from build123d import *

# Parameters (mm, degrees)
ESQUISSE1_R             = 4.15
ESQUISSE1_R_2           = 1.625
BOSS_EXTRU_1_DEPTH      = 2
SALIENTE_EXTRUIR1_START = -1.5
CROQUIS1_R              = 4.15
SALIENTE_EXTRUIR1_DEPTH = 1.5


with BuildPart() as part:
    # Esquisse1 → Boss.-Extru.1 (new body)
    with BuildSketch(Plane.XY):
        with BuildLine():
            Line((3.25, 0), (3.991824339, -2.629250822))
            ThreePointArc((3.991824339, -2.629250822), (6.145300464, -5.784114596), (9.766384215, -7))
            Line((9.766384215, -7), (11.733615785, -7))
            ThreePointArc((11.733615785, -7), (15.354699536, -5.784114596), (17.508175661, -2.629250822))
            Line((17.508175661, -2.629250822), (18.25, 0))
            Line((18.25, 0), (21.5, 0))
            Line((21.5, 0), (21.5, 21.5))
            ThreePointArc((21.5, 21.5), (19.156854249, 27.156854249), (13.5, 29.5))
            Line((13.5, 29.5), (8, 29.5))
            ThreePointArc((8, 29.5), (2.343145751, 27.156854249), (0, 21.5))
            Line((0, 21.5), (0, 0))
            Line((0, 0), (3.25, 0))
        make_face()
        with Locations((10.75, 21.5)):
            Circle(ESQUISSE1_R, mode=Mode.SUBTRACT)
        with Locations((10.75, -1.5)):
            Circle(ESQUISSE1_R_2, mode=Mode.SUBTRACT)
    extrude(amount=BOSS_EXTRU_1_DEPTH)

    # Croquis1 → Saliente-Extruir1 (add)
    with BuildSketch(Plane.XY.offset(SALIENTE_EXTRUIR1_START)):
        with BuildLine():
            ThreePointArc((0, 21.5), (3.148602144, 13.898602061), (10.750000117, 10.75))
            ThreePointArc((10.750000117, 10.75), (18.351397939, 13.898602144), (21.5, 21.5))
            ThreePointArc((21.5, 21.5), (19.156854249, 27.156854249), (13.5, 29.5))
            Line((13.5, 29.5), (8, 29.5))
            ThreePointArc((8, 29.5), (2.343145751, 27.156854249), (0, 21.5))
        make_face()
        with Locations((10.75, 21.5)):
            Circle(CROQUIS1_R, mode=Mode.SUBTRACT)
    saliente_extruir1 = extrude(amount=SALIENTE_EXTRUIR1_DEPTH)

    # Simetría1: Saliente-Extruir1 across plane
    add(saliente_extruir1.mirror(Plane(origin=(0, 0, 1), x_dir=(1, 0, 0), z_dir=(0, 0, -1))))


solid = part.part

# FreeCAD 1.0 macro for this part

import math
import FreeCAD as App
import Part
import Sketcher
from FreeCAD import Vector

doc = App.newDocument("Part")
body = doc.addObject("PartDesign::Body", "Body")

# Sketch on XY plane
sketch1 = body.newObject("Sketcher::SketchObject", "Sketch")
sketch1.AttachmentSupport = (doc.getObject("XY_Plane"), [""])
sketch1.MapMode = "FlatFace"
sketch1.addGeometry(Part.LineSegment(Vector(3.25, 0, 0), Vector(3.991824, -2.629251, 0)), False)
sketch1.addGeometry(Part.ArcOfCircle(Part.Circle(Vector(9.766384, -1, 0), Vector(0, 0, 1), 6), math.radians(-164.243966), math.radians(-90)), False)
sketch1.addGeometry(Part.LineSegment(Vector(9.766384, -7, 0), Vector(11.733616, -7, 0)), False)
sketch1.addGeometry(Part.ArcOfCircle(Part.Circle(Vector(11.733616, -1, 0), Vector(0, 0, 1), 6), math.radians(-90), math.radians(-15.756034)), False)
sketch1.addGeometry(Part.LineSegment(Vector(17.508176, -2.629251, 0), Vector(18.25, 0, 0)), False)
sketch1.addGeometry(Part.LineSegment(Vector(18.25, 0, 0), Vector(21.5, 0, 0)), False)
sketch1.addGeometry(Part.LineSegment(Vector(21.5, 0, 0), Vector(21.5, 21.5, 0)), False)
sketch1.addGeometry(Part.ArcOfCircle(Part.Circle(Vector(13.5, 21.5, 0), Vector(0, 0, 1), 8), math.radians(0), math.radians(90)), False)
sketch1.addGeometry(Part.LineSegment(Vector(13.5, 29.5, 0), Vector(8, 29.5, 0)), False)
sketch1.addGeometry(Part.ArcOfCircle(Part.Circle(Vector(8, 21.5, 0), Vector(0, 0, 1), 8), math.radians(90), math.radians(180)), False)
sketch1.addGeometry(Part.LineSegment(Vector(0, 21.5, 0), Vector(0, 0, 0)), False)
sketch1.addGeometry(Part.LineSegment(Vector(0, 0, 0), Vector(3.25, 0, 0)), False)
sketch1.addGeometry(Part.Circle(Vector(10.75, -1.5, 0), Vector(0, 0, 1), 1.625), False)
sketch1.addGeometry(Part.Circle(Vector(10.75, 21.5, 0), Vector(0, 0, 1), 4.15), False)
sketch1.addConstraint(Sketcher.Constraint("Tangent", 0, 2, 1, 1))
sketch1.addConstraint(Sketcher.Constraint("Tangent", 1, 2, 2, 1))
sketch1.addConstraint(Sketcher.Constraint("Tangent", 2, 2, 3, 1))
sketch1.addConstraint(Sketcher.Constraint("Tangent", 3, 2, 4, 1))
sketch1.addConstraint(Sketcher.Constraint("Coincident", 4, 2, 5, 1))
sketch1.addConstraint(Sketcher.Constraint("Coincident", 5, 2, 6, 1))
sketch1.addConstraint(Sketcher.Constraint("Tangent", 6, 2, 7, 1))
sketch1.addConstraint(Sketcher.Constraint("Tangent", 7, 2, 8, 1))
sketch1.addConstraint(Sketcher.Constraint("Tangent", 8, 2, 9, 1))
sketch1.addConstraint(Sketcher.Constraint("Tangent", 9, 2, 10, 1))
sketch1.addConstraint(Sketcher.Constraint("Coincident", 10, 2, 11, 1))
sketch1.addConstraint(Sketcher.Constraint("Coincident", 11, 2, 0, 1))
sketch1.addConstraint(Sketcher.Constraint("Horizontal", 2))
sketch1.addConstraint(Sketcher.Constraint("Horizontal", 5))
sketch1.addConstraint(Sketcher.Constraint("Vertical", 6))
sketch1.addConstraint(Sketcher.Constraint("Horizontal", 8))
sketch1.addConstraint(Sketcher.Constraint("Vertical", 10))
sketch1.addConstraint(Sketcher.Constraint("Horizontal", 11))
sketch1.addConstraint(Sketcher.Constraint("Coincident", 10, 2, -1, 1))
sketch1.addConstraint(Sketcher.Constraint("Equal", 1, 3))
sketch1.addConstraint(Sketcher.Constraint("Equal", 7, 9))
sketch1.addConstraint(Sketcher.Constraint("PointOnObject", 4, 2, -1))
sketch1.addConstraint(Sketcher.Constraint("Horizontal", 9, 3, 13, 3))
sketch1.addConstraint(Sketcher.Constraint("Horizontal", 0, 2, 3, 2))
sketch1.addConstraint(Sketcher.Constraint("Vertical", 12, 3, 13, 3))
sketch1.addConstraint(Sketcher.Constraint("Equal", 5, 11))
sketch1.addConstraint(Sketcher.Constraint("Radius", 1, 6.0))
sketch1.addConstraint(Sketcher.Constraint("Radius", 7, 8.0))
sketch1.addConstraint(Sketcher.Constraint("Diameter", 13, 8.3))
sketch1.addConstraint(Sketcher.Constraint("Diameter", 12, 3.25))
sketch1.addConstraint(Sketcher.Constraint("DistanceX", 8, 2, 8, 1, 5.5))
sketch1.addConstraint(Sketcher.Constraint("DistanceY", 6, 1, 6, 2, 21.5))
sketch1.addConstraint(Sketcher.Constraint("DistanceY", 1, 3, -1, 1, 1.0))
sketch1.addConstraint(Sketcher.Constraint("DistanceY", 12, 3, 7, 3, 23.0))
sketch1.addConstraint(Sketcher.Constraint("DistanceX", 5, 1, 5, 2, 3.25))
sketch1.addConstraint(Sketcher.Constraint("DistanceX", 12, 3, 4, 2, 7.5))
sketch1.addConstraint(Sketcher.Constraint("DistanceX", 2, 1, 2, 2, 1.967232))
pad1 = body.newObject("PartDesign::Pad", "Pad")
pad1.Profile = sketch1
pad1.Length = 2

# Sketch on XY plane
sketch2 = body.newObject("Sketcher::SketchObject", "Sketch001")
sketch2.AttachmentSupport = (doc.getObject("XY_Plane"), [""])
sketch2.MapMode = "FlatFace"
sketch2.AttachmentOffset = App.Placement(Vector(0, 0, -1.5), App.Rotation())
sketch2.addGeometry(Part.ArcOfCircle(Part.Circle(Vector(10.75, 21.5, 0), Vector(0, 0, 1), 10.75), math.radians(-180), math.radians(-89.999999)), False)
sketch2.addGeometry(Part.ArcOfCircle(Part.Circle(Vector(10.75, 21.5, 0), Vector(0, 0, 1), 10.75), math.radians(-89.999999), math.radians(0)), False)
sketch2.addGeometry(Part.ArcOfCircle(Part.Circle(Vector(13.5, 21.5, 0), Vector(0, 0, 1), 8), math.radians(0), math.radians(90)), False)
sketch2.addGeometry(Part.LineSegment(Vector(13.5, 29.5, 0), Vector(8, 29.5, 0)), False)
sketch2.addGeometry(Part.ArcOfCircle(Part.Circle(Vector(8, 21.5, 0), Vector(0, 0, 1), 8), math.radians(90), math.radians(180)), False)
sketch2.addGeometry(Part.Circle(Vector(10.75, 21.5, 0), Vector(0, 0, 1), 4.15), False)
sketch2.addConstraint(Sketcher.Constraint("Tangent", 0, 2, 1, 1))
sketch2.addConstraint(Sketcher.Constraint("Tangent", 1, 2, 2, 1))
sketch2.addConstraint(Sketcher.Constraint("Tangent", 2, 2, 3, 1))
sketch2.addConstraint(Sketcher.Constraint("Tangent", 3, 2, 4, 1))
sketch2.addConstraint(Sketcher.Constraint("Tangent", 4, 2, 0, 1))
sketch2.addConstraint(Sketcher.Constraint("Horizontal", 3))
sketch2.addConstraint(Sketcher.Constraint("Coincident", 5, 3, 0, 3))
sketch2.addConstraint(Sketcher.Constraint("Equal", 0, 1))
sketch2.addConstraint(Sketcher.Constraint("Equal", 2, 4))
sketch2.addConstraint(Sketcher.Constraint("PointOnObject", 4, 2, -2))
sketch2.addConstraint(Sketcher.Constraint("Horizontal", 1, 3, 2, 3))
sketch2.addConstraint(Sketcher.Constraint("Vertical", 5, 3, 0, 2))
sketch2.addConstraint(Sketcher.Constraint("Radius", 2, 8.0))
sketch2.addConstraint(Sketcher.Constraint("Diameter", 5, 8.3))
sketch2.addConstraint(Sketcher.Constraint("Radius", 0, 10.75))
sketch2.addConstraint(Sketcher.Constraint("DistanceY", -1, 1, 0, 3, 21.5))
pad2 = body.newObject("PartDesign::Pad", "Pad001")
pad2.Profile = sketch2
pad2.Length = 1.5
doc.recompute()

datumplane = body.newObject("PartDesign::Plane", "DatumPlane")
datumplane.AttachmentSupport = (doc.getObject("XY_Plane"), [""])
datumplane.MapMode = "FlatFace"
datumplane.AttachmentOffset = App.Placement(Vector(0, 0, 1), App.Rotation())
mirrored = body.newObject("PartDesign::Mirrored", "Mirrored")
mirrored.Originals = [pad2]
mirrored.MirrorPlane = (datumplane, [""])
body.Tip = mirrored

doc.recompute()
